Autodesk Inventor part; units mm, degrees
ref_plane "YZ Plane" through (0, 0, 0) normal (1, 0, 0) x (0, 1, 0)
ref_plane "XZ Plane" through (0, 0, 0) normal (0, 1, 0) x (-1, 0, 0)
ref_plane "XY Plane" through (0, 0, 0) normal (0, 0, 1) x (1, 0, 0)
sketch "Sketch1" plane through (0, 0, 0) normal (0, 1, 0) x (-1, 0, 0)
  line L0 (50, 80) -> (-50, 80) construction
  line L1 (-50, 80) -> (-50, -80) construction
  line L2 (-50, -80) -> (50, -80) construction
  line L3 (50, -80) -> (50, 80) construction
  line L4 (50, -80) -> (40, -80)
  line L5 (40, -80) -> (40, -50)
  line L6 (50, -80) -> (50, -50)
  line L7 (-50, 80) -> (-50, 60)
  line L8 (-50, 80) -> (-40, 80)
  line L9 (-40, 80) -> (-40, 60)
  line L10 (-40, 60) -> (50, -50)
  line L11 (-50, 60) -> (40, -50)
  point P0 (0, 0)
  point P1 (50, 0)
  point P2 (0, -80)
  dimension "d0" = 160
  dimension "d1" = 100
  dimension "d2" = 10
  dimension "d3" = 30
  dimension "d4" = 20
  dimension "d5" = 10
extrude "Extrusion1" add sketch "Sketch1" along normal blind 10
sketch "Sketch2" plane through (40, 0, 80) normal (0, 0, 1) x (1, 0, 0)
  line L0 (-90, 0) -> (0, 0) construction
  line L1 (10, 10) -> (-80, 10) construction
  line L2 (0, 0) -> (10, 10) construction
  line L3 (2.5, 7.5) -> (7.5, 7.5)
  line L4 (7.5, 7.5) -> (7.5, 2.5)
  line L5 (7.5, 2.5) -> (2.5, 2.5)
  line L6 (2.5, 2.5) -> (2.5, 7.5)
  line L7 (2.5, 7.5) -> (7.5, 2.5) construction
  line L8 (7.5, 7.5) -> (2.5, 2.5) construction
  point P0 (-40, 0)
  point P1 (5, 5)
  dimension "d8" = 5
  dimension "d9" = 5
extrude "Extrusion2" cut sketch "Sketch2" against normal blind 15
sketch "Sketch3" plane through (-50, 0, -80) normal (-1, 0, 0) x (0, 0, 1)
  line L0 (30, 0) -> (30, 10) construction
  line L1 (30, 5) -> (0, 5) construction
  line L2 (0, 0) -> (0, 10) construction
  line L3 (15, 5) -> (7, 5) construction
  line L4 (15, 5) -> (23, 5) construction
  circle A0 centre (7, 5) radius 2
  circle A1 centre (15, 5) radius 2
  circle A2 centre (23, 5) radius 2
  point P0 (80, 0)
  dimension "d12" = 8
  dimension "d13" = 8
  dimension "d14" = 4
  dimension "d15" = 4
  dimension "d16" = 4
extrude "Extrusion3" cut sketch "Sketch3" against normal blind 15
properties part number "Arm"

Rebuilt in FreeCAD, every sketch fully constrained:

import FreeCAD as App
import Part
import Sketcher
from FreeCAD import Vector
Q = App.Units.Quantity

doc = App.newDocument("Part")
body = doc.addObject("PartDesign::Body", "Body")

# Sketch on XZ plane
sketch1 = body.newObject("Sketcher::SketchObject", "Sketch")
sketch1.AttachmentSupport = (doc.getObject("XZ_Plane"), [""])
sketch1.MapMode = "FlatFace"
sketch1.addGeometry(Part.LineSegment(Vector(-40, -80, 0), Vector(-50, -80, 0)), False)
sketch1.addGeometry(Part.LineSegment(Vector(-50, -80, 0), Vector(-50, -50, 0)), False)
sketch1.addGeometry(Part.LineSegment(Vector(-50, -50, 0), Vector(40, 60, 0)), False)
sketch1.addGeometry(Part.LineSegment(Vector(40, 60, 0), Vector(40, 80, 0)), False)
sketch1.addGeometry(Part.LineSegment(Vector(40, 80, 0), Vector(50, 80, 0)), False)
sketch1.addGeometry(Part.LineSegment(Vector(50, 80, 0), Vector(50, 60, 0)), False)
sketch1.addGeometry(Part.LineSegment(Vector(50, 60, 0), Vector(-40, -50, 0)), False)
sketch1.addGeometry(Part.LineSegment(Vector(-40, -50, 0), Vector(-40, -80, 0)), False)
sketch1.addConstraint(Sketcher.Constraint("Coincident", 0, 2, 1, 1))
sketch1.addConstraint(Sketcher.Constraint("Coincident", 1, 2, 2, 1))
sketch1.addConstraint(Sketcher.Constraint("Coincident", 2, 2, 3, 1))
sketch1.addConstraint(Sketcher.Constraint("Coincident", 3, 2, 4, 1))
sketch1.addConstraint(Sketcher.Constraint("Coincident", 4, 2, 5, 1))
sketch1.addConstraint(Sketcher.Constraint("Coincident", 5, 2, 6, 1))
sketch1.addConstraint(Sketcher.Constraint("Coincident", 6, 2, 7, 1))
sketch1.addConstraint(Sketcher.Constraint("Coincident", 7, 2, 0, 1))
sketch1.addConstraint(Sketcher.Constraint("Horizontal", 0))
sketch1.addConstraint(Sketcher.Constraint("Vertical", 1))
sketch1.addConstraint(Sketcher.Constraint("Vertical", 3))
sketch1.addConstraint(Sketcher.Constraint("Horizontal", 4))
sketch1.addConstraint(Sketcher.Constraint("Vertical", 5))
sketch1.addConstraint(Sketcher.Constraint("Vertical", 7))
sketch1.addConstraint(Sketcher.Constraint("Symmetric", 0, 2, 4, 2, -1, 1))
sketch1.addConstraint(Sketcher.Constraint("Parallel", 2, 6))
sketch1.addConstraint(Sketcher.Constraint("Horizontal", 2, 2, 5, 2))
sketch1.addConstraint(Sketcher.Constraint("Horizontal", 1, 2, 6, 2))
sketch1.addConstraint(Sketcher.Constraint("DistanceX", 0, 2, 0, 1, Q("10 mm")))
sketch1.addConstraint(Sketcher.Constraint("DistanceY", 1, 1, 1, 2, Q("30 mm")))
sketch1.addConstraint(Sketcher.Constraint("DistanceY", 3, 1, 3, 2, Q("20 mm")))
sketch1.addConstraint(Sketcher.Constraint("DistanceY", 0, 2, 3, 2, Q("160 mm")))
sketch1.addConstraint(Sketcher.Constraint("DistanceX", 1, 2, 4, 2, Q("100 mm")))
pad1 = body.newObject("PartDesign::Pad", "Pad")
pad1.Profile = sketch1
pad1.Length = 10
pad1.Reversed = True

# Sketch on XY plane
sketch2 = body.newObject("Sketcher::SketchObject", "Sketch001")
sketch2.AttachmentSupport = (doc.getObject("XY_Plane"), [""])
sketch2.MapMode = "FlatFace"
sketch2.AttachmentOffset = App.Placement(Vector(0, 0, 80), App.Rotation())
sketch2.addGeometry(Part.LineSegment(Vector(48, 8, 0), Vector(42, 8, 0)), False)
sketch2.addGeometry(Part.LineSegment(Vector(42, 8, 0), Vector(42, 2, 0)), False)
sketch2.addGeometry(Part.LineSegment(Vector(42, 2, 0), Vector(48, 2, 0)), False)
sketch2.addGeometry(Part.LineSegment(Vector(48, 2, 0), Vector(48, 8, 0)), False)
sketch2.addConstraint(Sketcher.Constraint("Coincident", 0, 2, 1, 1))
sketch2.addConstraint(Sketcher.Constraint("Coincident", 1, 2, 2, 1))
sketch2.addConstraint(Sketcher.Constraint("Coincident", 2, 2, 3, 1))
sketch2.addConstraint(Sketcher.Constraint("Coincident", 3, 2, 0, 1))
sketch2.addConstraint(Sketcher.Constraint("Horizontal", 0))
sketch2.addConstraint(Sketcher.Constraint("Vertical", 1))
sketch2.addConstraint(Sketcher.Constraint("Horizontal", 2))
sketch2.addConstraint(Sketcher.Constraint("Vertical", 3))
sketch2.addConstraint(Sketcher.Constraint("Equal", 2, 1))
sketch2.addConstraint(Sketcher.Constraint("DistanceX", 0, 2, 0, 1, Q("5 mm")))
sketch2.addConstraint(Sketcher.Constraint("DistanceX", -1, 1, 0, 2, Q("42.5 mm")))
sketch2.addConstraint(Sketcher.Constraint("DistanceY", -1, 1, 0, 2, Q("7.5 mm")))
pocket1 = body.newObject("PartDesign::Pocket", "Pocket")
pocket1.Profile = sketch2
pocket1.Length = 15

# Sketch on YZ plane
sketch3 = body.newObject("Sketcher::SketchObject", "Sketch002")
sketch3.AttachmentSupport = (doc.getObject("YZ_Plane"), [""])
sketch3.MapMode = "FlatFace"
sketch3.AttachmentOffset = App.Placement(Vector(0, 0, -50), App.Rotation())
sketch3.addGeometry(Part.Circle(Vector(5, -73, 0), Vector(0, 0, 1), 2), False)
sketch3.addGeometry(Part.Circle(Vector(5, -65, 0), Vector(0, 0, 1), 2), False)
sketch3.addGeometry(Part.Circle(Vector(5, -57, 0), Vector(0, 0, 1), 2), False)
sketch3.addConstraint(Sketcher.Constraint("Equal", 0, 1))
sketch3.addConstraint(Sketcher.Constraint("Equal", 1, 2))
sketch3.addConstraint(Sketcher.Constraint("Vertical", 0, 3, 1, 3))
sketch3.addConstraint(Sketcher.Constraint("Vertical", 1, 3, 2, 3))
sketch3.addConstraint(Sketcher.Constraint("Diameter", 0, Q("4 mm")))
sketch3.addConstraint(Sketcher.Constraint("DistanceY", 0, 3, 1, 3, Q("8 mm")))
sketch3.addConstraint(Sketcher.Constraint("DistanceY", 1, 3, 2, 3, Q("8 mm")))
sketch3.addConstraint(Sketcher.Constraint("DistanceX", -1, 1, 0, 3, Q("5 mm")))
sketch3.addConstraint(Sketcher.Constraint("DistanceY", 0, 3, -1, 1, Q("73 mm")))
pocket2 = body.newObject("PartDesign::Pocket", "Pocket001")
pocket2.Profile = sketch3
pocket2.Length = 15
pocket2.Reversed = True

doc.recompute()
